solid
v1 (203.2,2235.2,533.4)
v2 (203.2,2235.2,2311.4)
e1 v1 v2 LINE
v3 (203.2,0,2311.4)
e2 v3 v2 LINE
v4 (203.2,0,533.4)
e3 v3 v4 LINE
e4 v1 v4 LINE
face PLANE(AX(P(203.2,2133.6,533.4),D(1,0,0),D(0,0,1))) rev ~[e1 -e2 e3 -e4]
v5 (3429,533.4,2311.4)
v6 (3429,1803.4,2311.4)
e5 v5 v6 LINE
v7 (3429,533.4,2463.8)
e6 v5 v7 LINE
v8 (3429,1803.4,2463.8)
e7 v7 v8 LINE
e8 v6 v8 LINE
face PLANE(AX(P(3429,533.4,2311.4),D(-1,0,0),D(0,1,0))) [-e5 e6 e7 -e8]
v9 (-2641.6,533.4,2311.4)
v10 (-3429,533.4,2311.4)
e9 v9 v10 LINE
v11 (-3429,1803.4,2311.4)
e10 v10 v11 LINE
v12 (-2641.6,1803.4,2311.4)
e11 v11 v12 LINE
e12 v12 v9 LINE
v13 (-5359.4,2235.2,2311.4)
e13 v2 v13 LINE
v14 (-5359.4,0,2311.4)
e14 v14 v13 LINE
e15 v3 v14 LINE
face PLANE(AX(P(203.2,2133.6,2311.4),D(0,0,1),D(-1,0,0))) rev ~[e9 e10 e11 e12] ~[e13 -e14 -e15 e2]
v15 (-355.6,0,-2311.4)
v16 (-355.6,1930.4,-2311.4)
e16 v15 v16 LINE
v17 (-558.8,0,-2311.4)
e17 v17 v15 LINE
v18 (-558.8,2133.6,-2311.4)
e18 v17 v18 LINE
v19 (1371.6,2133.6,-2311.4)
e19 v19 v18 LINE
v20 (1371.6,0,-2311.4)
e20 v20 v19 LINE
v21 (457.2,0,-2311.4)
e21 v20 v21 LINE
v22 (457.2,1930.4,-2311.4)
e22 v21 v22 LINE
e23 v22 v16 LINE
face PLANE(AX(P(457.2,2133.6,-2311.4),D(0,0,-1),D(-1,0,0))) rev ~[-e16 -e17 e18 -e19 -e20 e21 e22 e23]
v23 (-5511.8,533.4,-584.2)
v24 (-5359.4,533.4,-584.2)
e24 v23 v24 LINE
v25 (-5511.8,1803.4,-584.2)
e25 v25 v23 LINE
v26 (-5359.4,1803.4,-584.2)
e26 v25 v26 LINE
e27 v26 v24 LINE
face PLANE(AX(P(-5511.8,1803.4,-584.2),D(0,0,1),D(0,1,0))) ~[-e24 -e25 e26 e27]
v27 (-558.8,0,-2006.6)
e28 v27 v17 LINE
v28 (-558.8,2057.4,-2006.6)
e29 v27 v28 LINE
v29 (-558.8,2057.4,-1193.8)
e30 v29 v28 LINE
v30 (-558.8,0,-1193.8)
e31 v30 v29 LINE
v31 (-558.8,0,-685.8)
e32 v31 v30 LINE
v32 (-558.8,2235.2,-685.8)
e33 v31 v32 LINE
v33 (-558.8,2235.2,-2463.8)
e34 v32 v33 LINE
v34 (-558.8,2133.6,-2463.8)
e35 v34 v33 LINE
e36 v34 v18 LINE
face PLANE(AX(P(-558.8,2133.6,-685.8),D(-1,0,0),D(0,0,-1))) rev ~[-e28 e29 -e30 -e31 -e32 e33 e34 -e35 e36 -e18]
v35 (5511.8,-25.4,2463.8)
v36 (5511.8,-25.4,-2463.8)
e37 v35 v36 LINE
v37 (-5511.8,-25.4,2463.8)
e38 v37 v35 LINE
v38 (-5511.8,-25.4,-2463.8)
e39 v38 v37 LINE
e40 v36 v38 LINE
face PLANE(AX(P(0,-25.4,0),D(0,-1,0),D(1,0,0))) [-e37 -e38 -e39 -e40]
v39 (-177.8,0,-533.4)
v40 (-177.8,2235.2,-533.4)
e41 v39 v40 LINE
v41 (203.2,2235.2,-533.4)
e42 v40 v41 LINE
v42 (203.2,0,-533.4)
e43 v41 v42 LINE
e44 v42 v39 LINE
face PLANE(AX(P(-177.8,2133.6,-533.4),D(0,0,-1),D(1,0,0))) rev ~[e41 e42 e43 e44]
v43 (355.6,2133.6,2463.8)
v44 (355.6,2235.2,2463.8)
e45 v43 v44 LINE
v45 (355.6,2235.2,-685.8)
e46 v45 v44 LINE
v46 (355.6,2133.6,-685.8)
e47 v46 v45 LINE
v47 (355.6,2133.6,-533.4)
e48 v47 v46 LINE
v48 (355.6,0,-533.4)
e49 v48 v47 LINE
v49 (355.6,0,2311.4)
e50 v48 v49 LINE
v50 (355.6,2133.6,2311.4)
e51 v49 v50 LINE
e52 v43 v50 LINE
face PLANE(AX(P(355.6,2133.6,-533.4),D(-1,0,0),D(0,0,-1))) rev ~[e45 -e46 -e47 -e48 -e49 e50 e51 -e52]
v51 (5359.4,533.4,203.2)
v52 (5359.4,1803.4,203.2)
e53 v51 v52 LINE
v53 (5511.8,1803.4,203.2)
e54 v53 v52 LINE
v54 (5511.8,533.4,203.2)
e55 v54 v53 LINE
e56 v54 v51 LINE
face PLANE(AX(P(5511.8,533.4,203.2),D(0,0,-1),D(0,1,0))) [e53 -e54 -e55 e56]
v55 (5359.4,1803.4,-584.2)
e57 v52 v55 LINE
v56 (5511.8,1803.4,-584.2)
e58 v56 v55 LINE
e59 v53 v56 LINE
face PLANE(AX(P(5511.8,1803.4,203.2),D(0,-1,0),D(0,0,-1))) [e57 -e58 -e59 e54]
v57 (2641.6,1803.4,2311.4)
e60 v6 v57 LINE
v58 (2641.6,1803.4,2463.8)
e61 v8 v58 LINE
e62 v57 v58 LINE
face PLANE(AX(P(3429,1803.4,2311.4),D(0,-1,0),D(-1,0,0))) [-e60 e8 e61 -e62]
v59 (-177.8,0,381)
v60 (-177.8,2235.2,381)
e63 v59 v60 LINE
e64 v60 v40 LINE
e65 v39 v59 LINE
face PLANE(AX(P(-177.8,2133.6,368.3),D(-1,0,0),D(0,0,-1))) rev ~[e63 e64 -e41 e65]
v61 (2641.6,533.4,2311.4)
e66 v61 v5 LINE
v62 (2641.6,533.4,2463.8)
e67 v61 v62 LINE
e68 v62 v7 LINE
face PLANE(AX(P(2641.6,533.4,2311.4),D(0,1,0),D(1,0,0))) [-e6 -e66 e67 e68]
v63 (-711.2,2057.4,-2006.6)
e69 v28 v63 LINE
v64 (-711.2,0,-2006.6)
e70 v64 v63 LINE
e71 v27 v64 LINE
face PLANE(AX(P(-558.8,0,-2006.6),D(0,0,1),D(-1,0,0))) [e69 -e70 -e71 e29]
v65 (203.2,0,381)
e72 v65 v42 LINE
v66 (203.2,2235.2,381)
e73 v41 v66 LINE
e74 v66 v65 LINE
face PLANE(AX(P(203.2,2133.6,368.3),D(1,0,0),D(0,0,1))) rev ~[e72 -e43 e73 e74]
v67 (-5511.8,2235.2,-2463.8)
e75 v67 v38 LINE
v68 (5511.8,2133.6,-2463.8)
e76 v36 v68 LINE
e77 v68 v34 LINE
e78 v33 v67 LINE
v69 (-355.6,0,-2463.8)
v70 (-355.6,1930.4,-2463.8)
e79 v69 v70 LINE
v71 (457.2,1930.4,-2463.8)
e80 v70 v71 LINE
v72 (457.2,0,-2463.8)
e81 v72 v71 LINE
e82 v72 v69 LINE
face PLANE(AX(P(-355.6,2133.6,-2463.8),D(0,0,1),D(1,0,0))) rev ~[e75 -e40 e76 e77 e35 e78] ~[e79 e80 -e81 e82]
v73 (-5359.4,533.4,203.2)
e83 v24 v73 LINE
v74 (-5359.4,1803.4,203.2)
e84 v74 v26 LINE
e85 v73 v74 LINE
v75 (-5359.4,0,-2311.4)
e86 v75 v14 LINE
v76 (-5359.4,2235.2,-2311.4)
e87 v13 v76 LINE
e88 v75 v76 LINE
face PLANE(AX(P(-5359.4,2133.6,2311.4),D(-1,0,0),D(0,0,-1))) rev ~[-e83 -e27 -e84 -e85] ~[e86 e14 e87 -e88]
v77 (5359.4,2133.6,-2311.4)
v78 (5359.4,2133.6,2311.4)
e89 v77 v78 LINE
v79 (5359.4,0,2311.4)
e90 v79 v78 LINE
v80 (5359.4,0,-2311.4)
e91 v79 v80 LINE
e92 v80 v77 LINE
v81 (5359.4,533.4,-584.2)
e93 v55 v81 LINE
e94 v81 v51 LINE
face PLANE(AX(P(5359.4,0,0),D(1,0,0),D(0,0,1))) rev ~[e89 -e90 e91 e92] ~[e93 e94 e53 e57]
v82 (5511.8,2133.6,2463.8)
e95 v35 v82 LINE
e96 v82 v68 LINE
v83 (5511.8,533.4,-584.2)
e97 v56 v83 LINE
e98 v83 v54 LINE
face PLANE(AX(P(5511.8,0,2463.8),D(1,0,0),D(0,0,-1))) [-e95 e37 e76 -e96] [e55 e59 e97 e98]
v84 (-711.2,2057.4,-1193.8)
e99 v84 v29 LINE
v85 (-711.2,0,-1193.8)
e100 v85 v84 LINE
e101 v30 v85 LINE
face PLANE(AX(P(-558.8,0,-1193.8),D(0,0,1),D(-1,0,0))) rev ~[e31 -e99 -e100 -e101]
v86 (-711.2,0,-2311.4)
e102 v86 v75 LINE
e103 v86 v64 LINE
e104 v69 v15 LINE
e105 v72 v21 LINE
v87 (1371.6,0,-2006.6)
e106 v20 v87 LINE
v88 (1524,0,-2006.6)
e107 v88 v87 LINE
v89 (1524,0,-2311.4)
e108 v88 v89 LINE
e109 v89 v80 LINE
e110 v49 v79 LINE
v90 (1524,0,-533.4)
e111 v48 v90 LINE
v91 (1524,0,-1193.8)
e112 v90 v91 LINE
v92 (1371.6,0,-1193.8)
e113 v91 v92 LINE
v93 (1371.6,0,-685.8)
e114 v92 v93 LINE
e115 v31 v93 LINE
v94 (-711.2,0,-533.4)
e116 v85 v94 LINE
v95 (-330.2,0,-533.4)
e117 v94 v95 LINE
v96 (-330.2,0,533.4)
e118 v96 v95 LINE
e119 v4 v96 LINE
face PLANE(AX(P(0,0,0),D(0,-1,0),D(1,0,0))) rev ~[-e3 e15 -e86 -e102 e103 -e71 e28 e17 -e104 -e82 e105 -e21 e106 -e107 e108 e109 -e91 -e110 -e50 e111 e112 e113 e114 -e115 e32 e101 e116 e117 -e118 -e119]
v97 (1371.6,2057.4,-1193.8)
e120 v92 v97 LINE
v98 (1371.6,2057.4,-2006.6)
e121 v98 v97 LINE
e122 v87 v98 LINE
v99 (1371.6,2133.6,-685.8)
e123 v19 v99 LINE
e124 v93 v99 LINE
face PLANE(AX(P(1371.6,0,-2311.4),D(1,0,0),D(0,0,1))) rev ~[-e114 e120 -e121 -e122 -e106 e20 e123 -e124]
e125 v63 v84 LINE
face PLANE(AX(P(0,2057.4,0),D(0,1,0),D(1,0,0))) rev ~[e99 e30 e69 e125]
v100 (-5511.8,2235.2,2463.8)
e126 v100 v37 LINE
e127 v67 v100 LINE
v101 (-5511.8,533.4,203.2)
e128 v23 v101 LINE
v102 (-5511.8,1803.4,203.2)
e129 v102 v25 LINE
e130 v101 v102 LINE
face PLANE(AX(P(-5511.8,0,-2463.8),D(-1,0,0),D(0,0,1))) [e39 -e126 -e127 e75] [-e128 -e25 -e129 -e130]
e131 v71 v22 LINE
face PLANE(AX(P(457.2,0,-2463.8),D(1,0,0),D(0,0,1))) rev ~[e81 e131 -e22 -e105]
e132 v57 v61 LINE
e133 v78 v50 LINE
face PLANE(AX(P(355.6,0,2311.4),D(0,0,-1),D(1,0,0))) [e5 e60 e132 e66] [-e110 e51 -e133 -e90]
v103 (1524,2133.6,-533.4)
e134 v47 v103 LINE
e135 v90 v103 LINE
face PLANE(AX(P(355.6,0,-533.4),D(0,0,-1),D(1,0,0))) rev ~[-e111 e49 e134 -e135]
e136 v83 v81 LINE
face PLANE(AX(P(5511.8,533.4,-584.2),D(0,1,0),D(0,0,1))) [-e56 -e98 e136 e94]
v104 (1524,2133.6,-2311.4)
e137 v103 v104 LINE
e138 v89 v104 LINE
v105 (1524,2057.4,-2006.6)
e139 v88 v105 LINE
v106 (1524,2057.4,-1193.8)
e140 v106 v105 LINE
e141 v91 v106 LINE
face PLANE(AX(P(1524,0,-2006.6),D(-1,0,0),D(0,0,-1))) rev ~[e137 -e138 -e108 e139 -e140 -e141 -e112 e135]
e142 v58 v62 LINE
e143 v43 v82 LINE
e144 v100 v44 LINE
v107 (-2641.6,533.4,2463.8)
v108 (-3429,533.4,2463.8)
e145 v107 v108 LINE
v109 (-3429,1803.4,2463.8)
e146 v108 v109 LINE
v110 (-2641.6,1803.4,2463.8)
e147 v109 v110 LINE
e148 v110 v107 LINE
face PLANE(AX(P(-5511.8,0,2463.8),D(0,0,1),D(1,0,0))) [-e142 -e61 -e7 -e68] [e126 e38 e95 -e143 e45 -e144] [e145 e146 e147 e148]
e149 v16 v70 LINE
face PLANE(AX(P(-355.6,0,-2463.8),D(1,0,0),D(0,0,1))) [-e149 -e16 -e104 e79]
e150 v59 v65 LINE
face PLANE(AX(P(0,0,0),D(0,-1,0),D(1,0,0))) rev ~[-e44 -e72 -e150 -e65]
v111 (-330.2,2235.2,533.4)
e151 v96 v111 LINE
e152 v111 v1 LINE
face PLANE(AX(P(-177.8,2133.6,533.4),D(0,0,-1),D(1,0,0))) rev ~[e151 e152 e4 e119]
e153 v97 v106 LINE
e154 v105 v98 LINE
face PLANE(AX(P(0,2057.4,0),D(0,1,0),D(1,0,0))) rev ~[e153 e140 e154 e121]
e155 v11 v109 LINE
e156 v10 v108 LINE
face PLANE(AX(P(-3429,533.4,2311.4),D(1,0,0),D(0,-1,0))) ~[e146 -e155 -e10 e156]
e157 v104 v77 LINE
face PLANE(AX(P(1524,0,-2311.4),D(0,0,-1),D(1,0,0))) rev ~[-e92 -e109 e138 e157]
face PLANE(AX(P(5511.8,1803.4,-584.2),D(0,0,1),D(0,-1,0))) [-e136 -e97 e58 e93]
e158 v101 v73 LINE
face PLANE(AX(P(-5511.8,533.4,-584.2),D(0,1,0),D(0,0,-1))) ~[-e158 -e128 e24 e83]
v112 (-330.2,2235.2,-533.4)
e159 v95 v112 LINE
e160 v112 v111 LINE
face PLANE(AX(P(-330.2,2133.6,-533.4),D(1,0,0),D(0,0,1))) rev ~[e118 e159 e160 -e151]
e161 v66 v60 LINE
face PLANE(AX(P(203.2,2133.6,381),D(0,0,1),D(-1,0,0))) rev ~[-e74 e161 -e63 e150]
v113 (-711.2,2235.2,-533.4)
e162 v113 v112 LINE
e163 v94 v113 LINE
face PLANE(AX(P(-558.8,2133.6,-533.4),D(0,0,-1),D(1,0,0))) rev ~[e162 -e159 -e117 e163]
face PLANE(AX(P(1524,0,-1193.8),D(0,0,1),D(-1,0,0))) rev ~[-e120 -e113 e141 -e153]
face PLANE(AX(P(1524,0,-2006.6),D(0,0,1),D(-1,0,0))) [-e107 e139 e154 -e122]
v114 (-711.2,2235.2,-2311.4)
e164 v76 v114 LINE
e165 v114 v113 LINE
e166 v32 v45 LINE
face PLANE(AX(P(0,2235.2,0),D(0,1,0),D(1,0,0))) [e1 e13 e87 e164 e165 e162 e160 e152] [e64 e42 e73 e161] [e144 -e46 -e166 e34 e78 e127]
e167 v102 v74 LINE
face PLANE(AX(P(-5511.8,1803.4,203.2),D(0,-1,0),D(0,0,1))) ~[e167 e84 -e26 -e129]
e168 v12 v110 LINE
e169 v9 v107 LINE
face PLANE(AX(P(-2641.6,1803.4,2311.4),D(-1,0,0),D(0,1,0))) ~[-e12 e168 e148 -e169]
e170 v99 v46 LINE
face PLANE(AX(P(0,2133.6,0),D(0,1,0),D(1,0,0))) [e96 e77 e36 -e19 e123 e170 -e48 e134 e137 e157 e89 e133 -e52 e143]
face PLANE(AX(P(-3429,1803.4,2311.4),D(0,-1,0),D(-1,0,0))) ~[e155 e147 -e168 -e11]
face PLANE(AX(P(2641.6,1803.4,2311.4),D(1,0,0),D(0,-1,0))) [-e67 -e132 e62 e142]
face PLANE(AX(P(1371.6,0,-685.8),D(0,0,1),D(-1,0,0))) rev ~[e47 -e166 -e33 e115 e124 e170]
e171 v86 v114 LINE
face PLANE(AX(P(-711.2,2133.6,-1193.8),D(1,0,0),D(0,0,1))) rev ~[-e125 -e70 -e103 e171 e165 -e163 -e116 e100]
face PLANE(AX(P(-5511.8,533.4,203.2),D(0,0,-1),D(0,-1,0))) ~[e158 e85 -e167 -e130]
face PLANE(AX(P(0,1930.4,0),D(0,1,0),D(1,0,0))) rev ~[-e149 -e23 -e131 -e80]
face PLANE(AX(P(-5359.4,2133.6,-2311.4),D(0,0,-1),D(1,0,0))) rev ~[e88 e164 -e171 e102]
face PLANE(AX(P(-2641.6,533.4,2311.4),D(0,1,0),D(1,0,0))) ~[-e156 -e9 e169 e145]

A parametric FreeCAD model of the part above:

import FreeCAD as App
import Part
import Sketcher
Q = App.Units.Quantity

doc = App.newDocument("Part")
body = doc.addObject("PartDesign::Body", "Body")

# Sketch on XZ plane
sketch1 = doc.addObject("Sketcher::SketchObject", "Sketch")
body.addObject(sketch1)
sketch1.AttachmentSupport = (doc.XZ_Plane, [""])
sketch1.MapMode = "FlatFace"
sketch1.addGeometry([
    Part.LineSegment(App.Vector(-5359, 2311, 0), App.Vector(-5359, -2311, 0)),  # 0
    Part.LineSegment(App.Vector(-5359, -2311, 0), App.Vector(-711, -2311, 0)),  # 1
    Part.LineSegment(App.Vector(-711, -2311, 0), App.Vector(-711, -2007, 0)),  # 2
    Part.LineSegment(App.Vector(-711, -2007, 0), App.Vector(-559, -2007, 0)),  # 3
    Part.LineSegment(App.Vector(-559, -2007, 0), App.Vector(-559, -2311, 0)),  # 4
    Part.LineSegment(App.Vector(-559, -2311, 0), App.Vector(-356, -2311, 0)),  # 5
    Part.LineSegment(App.Vector(-356, -2311, 0), App.Vector(-356, -2464, 0)),  # 6
    Part.LineSegment(App.Vector(-356, -2464, 0), App.Vector(-5512, -2464, 0)),  # 7
    Part.LineSegment(App.Vector(-5512, -2464, 0), App.Vector(-5512, 2464, 0)),  # 8
    Part.LineSegment(App.Vector(-5512, 2464, 0), App.Vector(5512, 2464, 0)),  # 9
    Part.LineSegment(App.Vector(5512, 2464, 0), App.Vector(5512, -2464, 0)),  # 10
    Part.LineSegment(App.Vector(5512, -2464, 0), App.Vector(457, -2464, 0)),  # 11
    Part.LineSegment(App.Vector(457, -2464, 0), App.Vector(457, -2311, 0)),  # 12
    Part.LineSegment(App.Vector(457, -2311, 0), App.Vector(1372, -2311, 0)),  # 13
    Part.LineSegment(App.Vector(1372, -2311, 0), App.Vector(1372, -2007, 0)),  # 14
    Part.LineSegment(App.Vector(1372, -2007, 0), App.Vector(1524, -2007, 0)),  # 15
    Part.LineSegment(App.Vector(1524, -2007, 0), App.Vector(1524, -2311, 0)),  # 16
    Part.LineSegment(App.Vector(1524, -2311, 0), App.Vector(5359, -2311, 0)),  # 17
    Part.LineSegment(App.Vector(5359, -2311, 0), App.Vector(5359, 2311, 0)),  # 18
    Part.LineSegment(App.Vector(5359, 2311, 0), App.Vector(356, 2311, 0)),  # 19
    Part.LineSegment(App.Vector(356, 2311, 0), App.Vector(356, -533, 0)),  # 20
    Part.LineSegment(App.Vector(356, -533, 0), App.Vector(1524, -533, 0)),  # 21
    Part.LineSegment(App.Vector(1524, -533, 0), App.Vector(1524, -1194, 0)),  # 22
    Part.LineSegment(App.Vector(1524, -1194, 0), App.Vector(1372, -1194, 0)),  # 23
    Part.LineSegment(App.Vector(1372, -1194, 0), App.Vector(1372, -686, 0)),  # 24
    Part.LineSegment(App.Vector(1372, -686, 0), App.Vector(-559, -686, 0)),  # 25
    Part.LineSegment(App.Vector(-559, -686, 0), App.Vector(-559, -1194, 0)),  # 26
    Part.LineSegment(App.Vector(-559, -1194, 0), App.Vector(-711, -1194, 0)),  # 27
    Part.LineSegment(App.Vector(-711, -1194, 0), App.Vector(-711, -533, 0)),  # 28
    Part.LineSegment(App.Vector(-711, -533, 0), App.Vector(-330, -533, 0)),  # 29
    Part.LineSegment(App.Vector(-330, -533, 0), App.Vector(-330, 533, 0)),  # 30
    Part.LineSegment(App.Vector(-330, 533, 0), App.Vector(203, 533, 0)),  # 31
    Part.LineSegment(App.Vector(203, 533, 0), App.Vector(203, 2311, 0)),  # 32
    Part.LineSegment(App.Vector(203, 2311, 0), App.Vector(-5359, 2311, 0)),  # 33
    Part.LineSegment(App.Vector(203, 381, 0), App.Vector(-178, 381, 0)),  # 34
    Part.LineSegment(App.Vector(-178, 381, 0), App.Vector(-178, -533, 0)),  # 35
    Part.LineSegment(App.Vector(-178, -533, 0), App.Vector(203, -533, 0)),  # 36
    Part.LineSegment(App.Vector(203, -533, 0), App.Vector(203, 381, 0)),  # 37
], False)
sketch1.addConstraint([
    Sketcher.Constraint("Coincident", 0, 2, 1, 1),
    Sketcher.Constraint("Coincident", 1, 2, 2, 1),
    Sketcher.Constraint("Coincident", 2, 2, 3, 1),
    Sketcher.Constraint("Coincident", 3, 2, 4, 1),
    Sketcher.Constraint("Coincident", 4, 2, 5, 1),
    Sketcher.Constraint("Coincident", 5, 2, 6, 1),
    Sketcher.Constraint("Coincident", 6, 2, 7, 1),
    Sketcher.Constraint("Coincident", 7, 2, 8, 1),
    Sketcher.Constraint("Coincident", 8, 2, 9, 1),
    Sketcher.Constraint("Coincident", 9, 2, 10, 1),
    Sketcher.Constraint("Coincident", 10, 2, 11, 1),
    Sketcher.Constraint("Coincident", 11, 2, 12, 1),
    Sketcher.Constraint("Coincident", 12, 2, 13, 1),
    Sketcher.Constraint("Coincident", 13, 2, 14, 1),
    Sketcher.Constraint("Coincident", 14, 2, 15, 1),
    Sketcher.Constraint("Coincident", 15, 2, 16, 1),
    Sketcher.Constraint("Coincident", 16, 2, 17, 1),
    Sketcher.Constraint("Coincident", 17, 2, 18, 1),
    Sketcher.Constraint("Coincident", 18, 2, 19, 1),
    Sketcher.Constraint("Coincident", 19, 2, 20, 1),
    Sketcher.Constraint("Coincident", 20, 2, 21, 1),
    Sketcher.Constraint("Coincident", 21, 2, 22, 1),
    Sketcher.Constraint("Coincident", 22, 2, 23, 1),
    Sketcher.Constraint("Coincident", 23, 2, 24, 1),
    Sketcher.Constraint("Coincident", 24, 2, 25, 1),
    Sketcher.Constraint("Coincident", 25, 2, 26, 1),
    Sketcher.Constraint("Coincident", 26, 2, 27, 1),
    Sketcher.Constraint("Coincident", 27, 2, 28, 1),
    Sketcher.Constraint("Coincident", 28, 2, 29, 1),
    Sketcher.Constraint("Coincident", 29, 2, 30, 1),
    Sketcher.Constraint("Coincident", 30, 2, 31, 1),
    Sketcher.Constraint("Coincident", 31, 2, 32, 1),
    Sketcher.Constraint("Coincident", 32, 2, 33, 1),
    Sketcher.Constraint("Coincident", 33, 2, 0, 1),
    Sketcher.Constraint("Coincident", 34, 2, 35, 1),
    Sketcher.Constraint("Coincident", 35, 2, 36, 1),
    Sketcher.Constraint("Coincident", 36, 2, 37, 1),
    Sketcher.Constraint("Coincident", 37, 2, 34, 1),
    Sketcher.Constraint("Vertical", 0),
    Sketcher.Constraint("Horizontal", 1),
    Sketcher.Constraint("Vertical", 2),
    Sketcher.Constraint("Horizontal", 3),
    Sketcher.Constraint("Vertical", 4),
    Sketcher.Constraint("Horizontal", 5),
    Sketcher.Constraint("Vertical", 6),
    Sketcher.Constraint("Horizontal", 7),
    Sketcher.Constraint("Vertical", 8),
    Sketcher.Constraint("Horizontal", 9),
    Sketcher.Constraint("Vertical", 10),
    Sketcher.Constraint("Horizontal", 11),
    Sketcher.Constraint("Vertical", 12),
    Sketcher.Constraint("Horizontal", 13),
    Sketcher.Constraint("Vertical", 14),
    Sketcher.Constraint("Horizontal", 15),
    Sketcher.Constraint("Vertical", 16),
    Sketcher.Constraint("Horizontal", 17),
    Sketcher.Constraint("Vertical", 18),
    Sketcher.Constraint("Horizontal", 19),
    Sketcher.Constraint("Vertical", 20),
    Sketcher.Constraint("Horizontal", 21),
    Sketcher.Constraint("Vertical", 22),
    Sketcher.Constraint("Horizontal", 23),
    Sketcher.Constraint("Vertical", 24),
    Sketcher.Constraint("Horizontal", 25),
    Sketcher.Constraint("Vertical", 26),
    Sketcher.Constraint("Horizontal", 27),
    Sketcher.Constraint("Vertical", 28),
    Sketcher.Constraint("Horizontal", 29),
    Sketcher.Constraint("Vertical", 30),
    Sketcher.Constraint("Horizontal", 31),
    Sketcher.Constraint("Vertical", 32),
    Sketcher.Constraint("Horizontal", 33),
    Sketcher.Constraint("Horizontal", 34),
    Sketcher.Constraint("Vertical", 35),
    Sketcher.Constraint("Horizontal", 36),
    Sketcher.Constraint("Vertical", 37),
    Sketcher.Constraint("Symmetric", 7, 2, 9, 2, -1, 1),
    Sketcher.Constraint("Symmetric", 0, 2, 18, 2, -1, 1),
    Sketcher.Constraint("Symmetric", 5, 2, 19, 2, -1, 1),
    Sketcher.Constraint("Symmetric", 31, 2, 36, 2, -1),
    Sketcher.Constraint("Horizontal", 7, 2, 10, 2),
    Sketcher.Constraint("Horizontal", 5, 2, 12, 2),
    Sketcher.Constraint("Horizontal", 3, 2, 14, 2),
    Sketcher.Constraint("Horizontal", 13, 2, 16, 2),
    Sketcher.Constraint("Horizontal", 23, 2, 26, 2),
    Sketcher.Constraint("Horizontal", 21, 2, 28, 2),
    Sketcher.Constraint("Horizontal", 19, 2, 32, 2),
    Sketcher.Constraint("Horizontal", 29, 2, 35, 2),
    Sketcher.Constraint("Vertical", 16, 2, 21, 2),
    Sketcher.Constraint("Vertical", 14, 2, 23, 2),
    Sketcher.Constraint("Vertical", 4, 2, 25, 2),
    Sketcher.Constraint("Vertical", 2, 2, 27, 2),
    Sketcher.Constraint("Equal", 3, 15),
    Sketcher.Constraint("Equal", 29, 34),
    Sketcher.Constraint("Equal", 27, 6),
    Sketcher.Constraint("Equal", 13, 35),
    Sketcher.Constraint("DistanceX", 1, 1, 1, 2, Q("183 in")),
    Sketcher.Constraint("DistanceX", 3, 1, 3, 2, Q("6 in")),
    Sketcher.Constraint("DistanceX", 9, 1, 9, 2, Q("434 in")),
    Sketcher.Constraint("DistanceX", 11, 2, 11, 1, Q("199 in")),
    Sketcher.Constraint("DistanceX", 17, 1, 17, 2, Q("151 in")),
    Sketcher.Constraint("DistanceX", 33, 2, 33, 1, Q("219 in")),
    Sketcher.Constraint("DistanceY", 2, 1, 2, 2, Q("12 in")),
    Sketcher.Constraint("DistanceY", 8, 1, 8, 2, Q("194 in")),
    Sketcher.Constraint("DistanceY", 20, 2, 20, 1, Q("112 in")),
    Sketcher.Constraint("DistanceX", 7, 2, 0, 2, Q("6 in")),
    Sketcher.Constraint("DistanceX", 6, 2, 11, 2, Q("32 in")),
    Sketcher.Constraint("DistanceY", 15, 2, 22, 2, Q("32 in")),
    Sketcher.Constraint("DistanceY", 24, 2, 21, 2, Q("6 in")),
    Sketcher.Constraint("DistanceX", 33, 2, 30, 2, Q("198 in")),
])
pad1 = doc.addObject("PartDesign::Pad", "Pad")
body.addObject(pad1)
pad1.Profile = sketch1
pad1.Length = Q("84 in")
pad1.Reversed = True

# Sketch on XZ plane
sketch2 = doc.addObject("Sketcher::SketchObject", "Sketch001")
body.addObject(sketch2)
sketch2.AttachmentSupport = (doc.XZ_Plane, [""])
sketch2.MapMode = "FlatFace"
sketch2.addGeometry([
    Part.LineSegment(App.Vector(5512, 2464, 0), App.Vector(-5512, 2464, 0)),
    Part.LineSegment(App.Vector(-5512, 2464, 0), App.Vector(-5512, -2464, 0)),
    Part.LineSegment(App.Vector(-5512, -2464, 0), App.Vector(5512, -2464, 0)),
    Part.LineSegment(App.Vector(5512, -2464, 0), App.Vector(5512, 2464, 0)),
], False)
sketch2.addConstraint([
    Sketcher.Constraint("Coincident", 0, 2, 1, 1),
    Sketcher.Constraint("Coincident", 1, 2, 2, 1),
    Sketcher.Constraint("Coincident", 2, 2, 3, 1),
    Sketcher.Constraint("Coincident", 3, 2, 0, 1),
    Sketcher.Constraint("Horizontal", 0),
    Sketcher.Constraint("Vertical", 1),
    Sketcher.Constraint("Horizontal", 2),
    Sketcher.Constraint("Vertical", 3),
    Sketcher.Constraint("Symmetric", 0, 2, 2, 2, -1, 1),
    Sketcher.Constraint("DistanceX", 0, 2, 0, 1, Q("434 in")),
    Sketcher.Constraint("DistanceY", 1, 2, 1, 1, Q("194 in")),
])
pad2 = doc.addObject("PartDesign::Pad", "Pad001")
body.addObject(pad2)
pad2.Profile = sketch2
pad2.Length = Q("1 in")

# Sketch on XZ plane
sketch3 = doc.addObject("Sketcher::SketchObject", "Sketch002")
body.addObject(sketch3)
sketch3.AttachmentSupport = (doc.XZ_Plane, [""])
sketch3.MapMode = "FlatFace"
sketch3.AttachmentOffset = App.Placement(App.Vector(0, 0, -84 * 25.4), App.Rotation())
sketch3.addGeometry([
    Part.LineSegment(App.Vector(1372, -2007, 0), App.Vector(1372, -1194, 0)),  # 0
    Part.LineSegment(App.Vector(1372, -1194, 0), App.Vector(1524, -1194, 0)),  # 1
    Part.LineSegment(App.Vector(1524, -1194, 0), App.Vector(1524, -2007, 0)),  # 2
    Part.LineSegment(App.Vector(1524, -2007, 0), App.Vector(1372, -2007, 0)),  # 3
    Part.LineSegment(App.Vector(-711, -1194, 0), App.Vector(-559, -1194, 0)),  # 4
    Part.LineSegment(App.Vector(-559, -1194, 0), App.Vector(-559, -2007, 0)),  # 5
    Part.LineSegment(App.Vector(-559, -2007, 0), App.Vector(-711, -2007, 0)),  # 6
    Part.LineSegment(App.Vector(-711, -2007, 0), App.Vector(-711, -1194, 0)),  # 7
], False)
sketch3.addConstraint([
    Sketcher.Constraint("Coincident", 0, 2, 1, 1),
    Sketcher.Constraint("Coincident", 1, 2, 2, 1),
    Sketcher.Constraint("Coincident", 2, 2, 3, 1),
    Sketcher.Constraint("Coincident", 3, 2, 0, 1),
    Sketcher.Constraint("Coincident", 4, 2, 5, 1),
    Sketcher.Constraint("Coincident", 5, 2, 6, 1),
    Sketcher.Constraint("Coincident", 6, 2, 7, 1),
    Sketcher.Constraint("Coincident", 7, 2, 4, 1),
    Sketcher.Constraint("Vertical", 0),
    Sketcher.Constraint("Horizontal", 1),
    Sketcher.Constraint("Vertical", 2),
    Sketcher.Constraint("Horizontal", 3),
    Sketcher.Constraint("Horizontal", 4),
    Sketcher.Constraint("Vertical", 5),
    Sketcher.Constraint("Horizontal", 6),
    Sketcher.Constraint("Vertical", 7),
    Sketcher.Constraint("Horizontal", 1, 2, 4, 2),
    Sketcher.Constraint("Horizontal", 3, 2, 5, 2),
    Sketcher.Constraint("Equal", 3, 4),
    Sketcher.Constraint("DistanceX", 1, 1, 1, 2, Q("6 in")),
    Sketcher.Constraint("DistanceY", 0, 1, 0, 2, Q("32 in")),
    Sketcher.Constraint("DistanceX", -1, 1, 0, 2, Q("54 in")),
    Sketcher.Constraint("DistanceY", 0, 2, -1, 1, Q("47 in")),
    Sketcher.Constraint("DistanceX", 4, 2, -1, 1, Q("22 in")),
])
pad3 = doc.addObject("PartDesign::Pad", "Pad002")
body.addObject(pad3)
pad3.Profile = sketch3
pad3.Length = Q("3 in")

# Sketch on XZ plane
sketch4 = doc.addObject("Sketcher::SketchObject", "Sketch003")
body.addObject(sketch4)
sketch4.AttachmentSupport = (doc.XZ_Plane, [""])
sketch4.MapMode = "FlatFace"
sketch4.AttachmentOffset = App.Placement(App.Vector(0, 0, -84 * 25.4), App.Rotation())
sketch4.addGeometry([
    Part.LineSegment(App.Vector(356, -686, 0), App.Vector(-559, -686, 0)),  # 0
    Part.LineSegment(App.Vector(-559, -686, 0), App.Vector(-559, -2464, 0)),  # 1
    Part.LineSegment(App.Vector(-559, -2464, 0), App.Vector(-5512, -2464, 0)),  # 2
    Part.LineSegment(App.Vector(-5512, -2464, 0), App.Vector(-5512, 2464, 0)),  # 3
    Part.LineSegment(App.Vector(-5512, 2464, 0), App.Vector(356, 2464, 0)),  # 4
    Part.LineSegment(App.Vector(356, 2464, 0), App.Vector(356, -686, 0)),  # 5
    Part.LineSegment(App.Vector(203, 533, 0), App.Vector(203, 2311, 0)),  # 6
    Part.LineSegment(App.Vector(203, 2311, 0), App.Vector(-5359, 2311, 0)),  # 7
    Part.LineSegment(App.Vector(-5359, 2311, 0), App.Vector(-5359, -2311, 0)),  # 8
    Part.LineSegment(App.Vector(-5359, -2311, 0), App.Vector(-711, -2311, 0)),  # 9
    Part.LineSegment(App.Vector(-711, -2311, 0), App.Vector(-711, -533, 0)),  # 10
    Part.LineSegment(App.Vector(-711, -533, 0), App.Vector(-330, -533, 0)),  # 11
    Part.LineSegment(App.Vector(-330, -533, 0), App.Vector(-330, 533, 0)),  # 12
    Part.LineSegment(App.Vector(-330, 533, 0), App.Vector(203, 533, 0)),  # 13
    Part.LineSegment(App.Vector(203, 381, 0), App.Vector(-178, 381, 0)),  # 14
    Part.LineSegment(App.Vector(-178, 381, 0), App.Vector(-178, -533, 0)),  # 15
    Part.LineSegment(App.Vector(-178, -533, 0), App.Vector(203, -533, 0)),  # 16
    Part.LineSegment(App.Vector(203, -533, 0), App.Vector(203, 381, 0)),  # 17
], False)
sketch4.addConstraint([
    Sketcher.Constraint("Coincident", 0, 2, 1, 1),
    Sketcher.Constraint("Coincident", 1, 2, 2, 1),
    Sketcher.Constraint("Coincident", 2, 2, 3, 1),
    Sketcher.Constraint("Coincident", 3, 2, 4, 1),
    Sketcher.Constraint("Coincident", 4, 2, 5, 1),
    Sketcher.Constraint("Coincident", 5, 2, 0, 1),
    Sketcher.Constraint("Coincident", 6, 2, 7, 1),
    Sketcher.Constraint("Coincident", 7, 2, 8, 1),
    Sketcher.Constraint("Coincident", 8, 2, 9, 1),
    Sketcher.Constraint("Coincident", 9, 2, 10, 1),
    Sketcher.Constraint("Coincident", 10, 2, 11, 1),
    Sketcher.Constraint("Coincident", 11, 2, 12, 1),
    Sketcher.Constraint("Coincident", 12, 2, 13, 1),
    Sketcher.Constraint("Coincident", 13, 2, 6, 1),
    Sketcher.Constraint("Coincident", 14, 2, 15, 1),
    Sketcher.Constraint("Coincident", 15, 2, 16, 1),
    Sketcher.Constraint("Coincident", 16, 2, 17, 1),
    Sketcher.Constraint("Coincident", 17, 2, 14, 1),
    Sketcher.Constraint("Horizontal", 0),
    Sketcher.Constraint("Vertical", 1),
    Sketcher.Constraint("Horizontal", 2),
    Sketcher.Constraint("Vertical", 3),
    Sketcher.Constraint("Horizontal", 4),
    Sketcher.Constraint("Vertical", 5),
    Sketcher.Constraint("Vertical", 6),
    Sketcher.Constraint("Horizontal", 7),
    Sketcher.Constraint("Vertical", 8),
    Sketcher.Constraint("Horizontal", 9),
    Sketcher.Constraint("Vertical", 10),
    Sketcher.Constraint("Horizontal", 11),
    Sketcher.Constraint("Vertical", 12),
    Sketcher.Constraint("Horizontal", 13),
    Sketcher.Constraint("Horizontal", 14),
    Sketcher.Constraint("Vertical", 15),
    Sketcher.Constraint("Horizontal", 16),
    Sketcher.Constraint("Vertical", 17),
    Sketcher.Constraint("Symmetric", 13, 2, 16, 2, -1),
    Sketcher.Constraint("Horizontal", 11, 2, 15, 2),
    Sketcher.Constraint("Equal", 11, 14),
    Sketcher.Constraint("Equal", 1, 6),
    Sketcher.Constraint("Equal", 6, 10),
    Sketcher.Constraint("Equal", 0, 15),
    Sketcher.Constraint("DistanceX", 0, 2, 0, 1, Q("36 in")),
    Sketcher.Constraint("DistanceX", 2, 2, 2, 1, Q("195 in")),
    Sketcher.Constraint("DistanceX", 7, 2, 7, 1, Q("219 in")),
    Sketcher.Constraint("DistanceX", 9, 1, 9, 2, Q("183 in")),
    Sketcher.Constraint("DistanceX", 11, 1, 11, 2, Q("15 in")),
    Sketcher.Constraint("DistanceY", 1, 2, 1, 1, Q("70 in")),
    Sketcher.Constraint("DistanceY", 3, 1, 3, 2, Q("194 in")),
    Sketcher.Constraint("DistanceY", 8, 2, 8, 1, Q("182 in")),
    Sketcher.Constraint("DistanceX", 0, 2, -1, 1, Q("22 in")),
    Sketcher.Constraint("DistanceY", 0, 2, -1, 1, Q("27 in")),
    Sketcher.Constraint("DistanceX", -1, 1, 6, 2, Q("8 in")),
])
pad4 = doc.addObject("PartDesign::Pad", "Pad003")
body.addObject(pad4)
pad4.Profile = sketch4
pad4.Length = Q("4 in")
pad4.Reversed = True

# Sketch on XZ plane
sketch5 = doc.addObject("Sketcher::SketchObject", "Sketch004")
body.addObject(sketch5)
sketch5.AttachmentSupport = (doc.XZ_Plane, [""])
sketch5.MapMode = "FlatFace"
sketch5.AttachmentOffset = App.Placement(App.Vector(0, 0, -84 * 25.4), App.Rotation())
sketch5.addGeometry([
    Part.LineSegment(App.Vector(356, -533, 0), App.Vector(356, -686, 0)),
    Part.LineSegment(App.Vector(356, -686, 0), App.Vector(-559, -686, 0)),
    Part.LineSegment(App.Vector(-559, -686, 0), App.Vector(-559, -533, 0)),
    Part.LineSegment(App.Vector(-559, -533, 0), App.Vector(356, -533, 0)),
], False)
sketch5.addConstraint([
    Sketcher.Constraint("Coincident", 0, 2, 1, 1),
    Sketcher.Constraint("Coincident", 1, 2, 2, 1),
    Sketcher.Constraint("Coincident", 2, 2, 3, 1),
    Sketcher.Constraint("Coincident", 3, 2, 0, 1),
    Sketcher.Constraint("Vertical", 0),
    Sketcher.Constraint("Horizontal", 1),
    Sketcher.Constraint("Vertical", 2),
    Sketcher.Constraint("Horizontal", 3),
    Sketcher.Constraint("DistanceX", 1, 2, 1, 1, Q("36 in")),
    Sketcher.Constraint("DistanceY", 0, 2, 0, 1, Q("6 in")),
    Sketcher.Constraint("DistanceX", -1, 1, 0, 2, Q("14 in")),
    Sketcher.Constraint("DistanceY", 0, 2, -1, 1, Q("27 in")),
])
pad5 = doc.addObject("PartDesign::Pad", "Pad004")
body.addObject(pad5)
pad5.Profile = sketch5
pad5.Length = Q("4 in")
pad5.Reversed = True

# Sketch on YZ plane
sketch6 = doc.addObject("Sketcher::SketchObject", "Sketch005")
body.addObject(sketch6)
sketch6.AttachmentSupport = (doc.YZ_Plane, [""])
sketch6.MapMode = "FlatFace"
sketch6.AttachmentOffset = App.Placement(App.Vector(0, 0, 217 * 25.4), App.Rotation())
sketch6.addGeometry([
    Part.LineSegment(App.Vector(1803, -584, 0), App.Vector(1803, 203, 0)),
    Part.LineSegment(App.Vector(1803, 203, 0), App.Vector(533, 203, 0)),
    Part.LineSegment(App.Vector(533, 203, 0), App.Vector(533, -584, 0)),
    Part.LineSegment(App.Vector(533, -584, 0), App.Vector(1803, -584, 0)),
], False)
sketch6.addConstraint([
    Sketcher.Constraint("Coincident", 0, 2, 1, 1),
    Sketcher.Constraint("Coincident", 1, 2, 2, 1),
    Sketcher.Constraint("Coincident", 2, 2, 3, 1),
    Sketcher.Constraint("Coincident", 3, 2, 0, 1),
    Sketcher.Constraint("Vertical", 0),
    Sketcher.Constraint("Horizontal", 1),
    Sketcher.Constraint("Vertical", 2),
    Sketcher.Constraint("Horizontal", 3),
    Sketcher.Constraint("DistanceY", 0, 1, 0, 2, Q("31 in")),
    Sketcher.Constraint("DistanceX", -1, 1, 1, 2, Q("21 in")),
    Sketcher.Constraint("DistanceX", 1, 2, 1, 1, Q("50 in")),
    Sketcher.Constraint("DistanceY", -1, 1, 0, 2, Q("8 in")),
])
pocket1 = doc.addObject("PartDesign::Pocket", "Pocket")
body.addObject(pocket1)
pocket1.Profile = sketch6
pocket1.Length = Q("6 in")

# Sketch on XY plane
sketch7 = doc.addObject("Sketcher::SketchObject", "Sketch006")
body.addObject(sketch7)
sketch7.AttachmentSupport = (doc.XY_Plane, [""])
sketch7.MapMode = "FlatFace"
sketch7.AttachmentOffset = App.Placement(App.Vector(0, 0, 91 * 25.4), App.Rotation())
sketch7.addGeometry([
    Part.LineSegment(App.Vector(2642, 1803, 0), App.Vector(3429, 1803, 0)),
    Part.LineSegment(App.Vector(3429, 1803, 0), App.Vector(3429, 533, 0)),
    Part.LineSegment(App.Vector(3429, 533, 0), App.Vector(2642, 533, 0)),
    Part.LineSegment(App.Vector(2642, 533, 0), App.Vector(2642, 1803, 0)),
], False)
sketch7.addConstraint([
    Sketcher.Constraint("Coincident", 0, 2, 1, 1),
    Sketcher.Constraint("Coincident", 1, 2, 2, 1),
    Sketcher.Constraint("Coincident", 2, 2, 3, 1),
    Sketcher.Constraint("Coincident", 3, 2, 0, 1),
    Sketcher.Constraint("Horizontal", 0),
    Sketcher.Constraint("Vertical", 1),
    Sketcher.Constraint("Horizontal", 2),
    Sketcher.Constraint("Vertical", 3),
    Sketcher.Constraint("DistanceX", 0, 1, 0, 2, Q("31 in")),
    Sketcher.Constraint("DistanceY", -1, 1, 1, 2, Q("21 in")),
    Sketcher.Constraint("DistanceY", 1, 2, 1, 1, Q("50 in")),
    Sketcher.Constraint("DistanceX", -1, 1, 0, 2, Q("135 in")),
])
pocket2 = doc.addObject("PartDesign::Pocket", "Pocket001")
body.addObject(pocket2)
pocket2.Profile = sketch7
pocket2.Length = Q("6 in")
pocket2.Reversed = True
doc.recompute()

mirrored = doc.addObject("PartDesign::Mirrored", "Mirrored")
body.addObject(mirrored)
mirrored.Originals = [pocket1, pocket2]
mirrored.MirrorPlane = (doc.YZ_Plane, [""])
body.Tip = mirrored

# Sketch on XZ plane
sketch8 = doc.addObject("Sketcher::SketchObject", "Sketch007")
body.addObject(sketch8)
sketch8.AttachmentSupport = (doc.XZ_Plane, [""])
sketch8.MapMode = "FlatFace"
sketch8.AttachmentOffset = App.Placement(App.Vector(0, 0, -84 * 25.4), App.Rotation())
sketch8.addGeometry([
    Part.LineSegment(App.Vector(-356, -2311, 0), App.Vector(457, -2311, 0)),
    Part.LineSegment(App.Vector(457, -2311, 0), App.Vector(457, -2464, 0)),
    Part.LineSegment(App.Vector(457, -2464, 0), App.Vector(-356, -2464, 0)),
    Part.LineSegment(App.Vector(-356, -2464, 0), App.Vector(-356, -2311, 0)),
], False)
sketch8.addConstraint([
    Sketcher.Constraint("Coincident", 0, 2, 1, 1),
    Sketcher.Constraint("Coincident", 1, 2, 2, 1),
    Sketcher.Constraint("Coincident", 2, 2, 3, 1),
    Sketcher.Constraint("Coincident", 3, 2, 0, 1),
    Sketcher.Constraint("Horizontal", 0),
    Sketcher.Constraint("Vertical", 1),
    Sketcher.Constraint("Horizontal", 2),
    Sketcher.Constraint("Vertical", 3),
    Sketcher.Constraint("DistanceX", 0, 1, 0, 2, Q("32 in")),
    Sketcher.Constraint("DistanceY", 1, 2, 1, 1, Q("6 in")),
    Sketcher.Constraint("DistanceX", -1, 1, 0, 2, Q("18 in")),
    Sketcher.Constraint("DistanceY", 0, 2, -1, 1, Q("91 in")),
])
pad6 = doc.addObject("PartDesign::Pad", "Pad005")
body.addObject(pad6)
pad6.Profile = sketch8
pad6.Length = Q("8 in")

doc.recompute()
